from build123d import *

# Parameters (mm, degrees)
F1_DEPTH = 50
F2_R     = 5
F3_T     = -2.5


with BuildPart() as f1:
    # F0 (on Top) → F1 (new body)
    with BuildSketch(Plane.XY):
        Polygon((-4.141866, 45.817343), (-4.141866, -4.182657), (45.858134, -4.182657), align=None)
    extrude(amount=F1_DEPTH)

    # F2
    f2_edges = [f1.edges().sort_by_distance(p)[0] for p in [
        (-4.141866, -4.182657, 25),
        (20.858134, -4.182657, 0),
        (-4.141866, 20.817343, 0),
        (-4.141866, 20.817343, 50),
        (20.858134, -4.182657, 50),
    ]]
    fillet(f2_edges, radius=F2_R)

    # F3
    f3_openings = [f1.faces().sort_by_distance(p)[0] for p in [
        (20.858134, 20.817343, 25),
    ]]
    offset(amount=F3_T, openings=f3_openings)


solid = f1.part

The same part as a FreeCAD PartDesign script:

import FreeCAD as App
import Part
import Sketcher

V = App.Vector
Q = App.Units.Quantity


def edges_at(feature, points):
    """Names of the edges that pass closest to the given points."""
    edges = feature.Shape.Edges
    near = lambda p: min(range(len(edges)), key=lambda i: edges[i].distToShape(Part.Vertex(*p))[0])
    return sorted({f"Edge{near(p) + 1}" for p in points})


def faces_at(feature, points):
    """Names of the faces that lie closest to the given points."""
    faces = feature.Shape.Faces
    near = lambda p: min(range(len(faces)), key=lambda i: faces[i].distToShape(Part.Vertex(*p))[0])
    return sorted({f"Face{near(p) + 1}" for p in points})

doc = App.newDocument("Part")
body = doc.addObject("PartDesign::Body", "Body")

sketch1 = body.newObject("Sketcher::SketchObject", "Sketch")
sketch1.AttachmentSupport = (doc.getObject("XY_Plane"), [""])
sketch1.MapMode = "FlatFace"
sketch1.addGeometry([
    Part.LineSegment(V(-4, 46, 0), V(-4, -4, 0)),
    Part.LineSegment(V(-4, -4, 0), V(46, -4, 0)),
    Part.LineSegment(V(46, -4, 0), V(-4, 46, 0)),
], False)
sketch1.addConstraint([
    Sketcher.Constraint("Coincident", 0, 2, 1, 1),
    Sketcher.Constraint("Coincident", 1, 2, 2, 1),
    Sketcher.Constraint("Coincident", 2, 2, 0, 1),
    Sketcher.Constraint("Vertical", 0),
    Sketcher.Constraint("Horizontal", 1),
    Sketcher.Constraint("Equal", 1, 0),
    Sketcher.Constraint("DistanceX", 1, 1, 1, 2, Q("50 mm")),
    Sketcher.Constraint("DistanceX", 0, 2, -1, 1, Q("4.141866 mm")),
    Sketcher.Constraint("DistanceY", 0, 2, -1, 1, Q("4.182657 mm")),
])
pad1 = body.newObject("PartDesign::Pad", "Pad")
pad1.Profile = sketch1
pad1.Length = 50
doc.recompute()

fillet = body.newObject("PartDesign::Fillet", "Fillet")
fillet.Base = (pad1, edges_at(pad1, [
    (-4.142, -4.183, 25),
    (20.858, -4.183, 0),
    (-4.142, 20.817, 0),
    (-4.142, 20.817, 50),
    (20.858, -4.183, 50),
]))
fillet.Radius = 5
doc.recompute()

thickness = body.newObject("PartDesign::Thickness", "Thickness")
thickness.Base = (fillet, faces_at(fillet, [(20.858, 20.817, 25)]))
thickness.Value = 2.5
thickness.Reversed = True
thickness.Join = "Arc"

doc.recompute()
